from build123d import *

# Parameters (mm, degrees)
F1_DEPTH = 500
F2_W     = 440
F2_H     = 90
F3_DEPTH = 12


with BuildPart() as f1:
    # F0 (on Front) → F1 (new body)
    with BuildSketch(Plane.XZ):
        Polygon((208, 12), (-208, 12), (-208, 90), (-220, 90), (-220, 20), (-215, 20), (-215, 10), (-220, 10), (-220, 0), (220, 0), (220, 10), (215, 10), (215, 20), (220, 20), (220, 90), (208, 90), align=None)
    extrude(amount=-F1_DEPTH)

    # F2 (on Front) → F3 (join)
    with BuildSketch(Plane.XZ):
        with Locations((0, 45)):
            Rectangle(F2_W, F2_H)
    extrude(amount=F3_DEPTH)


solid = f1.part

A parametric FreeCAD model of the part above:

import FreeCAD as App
import Part
import Sketcher
Q = App.Units.Quantity

doc = App.newDocument("Part")
body = doc.addObject("PartDesign::Body", "Body")

sketch1 = body.newObject("Sketcher::SketchObject", "Sketch")
sketch1.AttachmentSupport = (doc.getObject("XZ_Plane"), [""])
sketch1.MapMode = "FlatFace"
sketch1.addGeometry(Part.LineSegment(App.Vector(208, 12, 0), App.Vector(-208, 12, 0)), False)
sketch1.addGeometry(Part.LineSegment(App.Vector(-208, 12, 0), App.Vector(-208, 90, 0)), False)
sketch1.addGeometry(Part.LineSegment(App.Vector(-208, 90, 0), App.Vector(-220, 90, 0)), False)
sketch1.addGeometry(Part.LineSegment(App.Vector(-220, 90, 0), App.Vector(-220, 20, 0)), False)
sketch1.addGeometry(Part.LineSegment(App.Vector(-220, 20, 0), App.Vector(-215, 20, 0)), False)
sketch1.addGeometry(Part.LineSegment(App.Vector(-215, 20, 0), App.Vector(-215, 10, 0)), False)
sketch1.addGeometry(Part.LineSegment(App.Vector(-215, 10, 0), App.Vector(-220, 10, 0)), False)
sketch1.addGeometry(Part.LineSegment(App.Vector(-220, 10, 0), App.Vector(-220, 0, 0)), False)
sketch1.addGeometry(Part.LineSegment(App.Vector(-220, 0, 0), App.Vector(220, 0, 0)), False)
sketch1.addGeometry(Part.LineSegment(App.Vector(220, 0, 0), App.Vector(220, 10, 0)), False)
sketch1.addGeometry(Part.LineSegment(App.Vector(220, 10, 0), App.Vector(215, 10, 0)), False)
sketch1.addGeometry(Part.LineSegment(App.Vector(215, 10, 0), App.Vector(215, 20, 0)), False)
sketch1.addGeometry(Part.LineSegment(App.Vector(215, 20, 0), App.Vector(220, 20, 0)), False)
sketch1.addGeometry(Part.LineSegment(App.Vector(220, 20, 0), App.Vector(220, 90, 0)), False)
sketch1.addGeometry(Part.LineSegment(App.Vector(220, 90, 0), App.Vector(208, 90, 0)), False)
sketch1.addGeometry(Part.LineSegment(App.Vector(208, 90, 0), App.Vector(208, 12, 0)), False)
sketch1.addConstraint(Sketcher.Constraint("Coincident", 0, 2, 1, 1))
sketch1.addConstraint(Sketcher.Constraint("Coincident", 1, 2, 2, 1))
sketch1.addConstraint(Sketcher.Constraint("Coincident", 2, 2, 3, 1))
sketch1.addConstraint(Sketcher.Constraint("Coincident", 3, 2, 4, 1))
sketch1.addConstraint(Sketcher.Constraint("Coincident", 4, 2, 5, 1))
sketch1.addConstraint(Sketcher.Constraint("Coincident", 5, 2, 6, 1))
sketch1.addConstraint(Sketcher.Constraint("Coincident", 6, 2, 7, 1))
sketch1.addConstraint(Sketcher.Constraint("Coincident", 7, 2, 8, 1))
sketch1.addConstraint(Sketcher.Constraint("Coincident", 8, 2, 9, 1))
sketch1.addConstraint(Sketcher.Constraint("Coincident", 9, 2, 10, 1))
sketch1.addConstraint(Sketcher.Constraint("Coincident", 10, 2, 11, 1))
sketch1.addConstraint(Sketcher.Constraint("Coincident", 11, 2, 12, 1))
sketch1.addConstraint(Sketcher.Constraint("Coincident", 12, 2, 13, 1))
sketch1.addConstraint(Sketcher.Constraint("Coincident", 13, 2, 14, 1))
sketch1.addConstraint(Sketcher.Constraint("Coincident", 14, 2, 15, 1))
sketch1.addConstraint(Sketcher.Constraint("Coincident", 15, 2, 0, 1))
sketch1.addConstraint(Sketcher.Constraint("Horizontal", 0))
sketch1.addConstraint(Sketcher.Constraint("Vertical", 1))
sketch1.addConstraint(Sketcher.Constraint("Horizontal", 2))
sketch1.addConstraint(Sketcher.Constraint("Vertical", 3))
sketch1.addConstraint(Sketcher.Constraint("Horizontal", 4))
sketch1.addConstraint(Sketcher.Constraint("Vertical", 5))
sketch1.addConstraint(Sketcher.Constraint("Horizontal", 6))
sketch1.addConstraint(Sketcher.Constraint("Vertical", 7))
sketch1.addConstraint(Sketcher.Constraint("Horizontal", 8))
sketch1.addConstraint(Sketcher.Constraint("Vertical", 9))
sketch1.addConstraint(Sketcher.Constraint("Horizontal", 10))
sketch1.addConstraint(Sketcher.Constraint("Vertical", 11))
sketch1.addConstraint(Sketcher.Constraint("Horizontal", 12))
sketch1.addConstraint(Sketcher.Constraint("Vertical", 13))
sketch1.addConstraint(Sketcher.Constraint("Horizontal", 14))
sketch1.addConstraint(Sketcher.Constraint("Vertical", 15))
sketch1.addConstraint(Sketcher.Constraint("Symmetric", 7, 2, 8, 2, -1, 1))
sketch1.addConstraint(Sketcher.Constraint("Symmetric", 5, 2, 10, 2, -2))
sketch1.addConstraint(Sketcher.Constraint("Symmetric", 3, 2, 12, 2, -2))
sketch1.addConstraint(Sketcher.Constraint("Symmetric", 1, 2, 14, 2, -2))
sketch1.addConstraint(Sketcher.Constraint("Vertical", 3, 2, 6, 2))
sketch1.addConstraint(Sketcher.Constraint("Equal", 5, 7))
sketch1.addConstraint(Sketcher.Constraint("DistanceX", 0, 2, 0, 1, Q("416 mm")))
sketch1.addConstraint(Sketcher.Constraint("DistanceX", 2, 2, 2, 1, Q("12 mm")))
sketch1.addConstraint(Sketcher.Constraint("DistanceX", 4, 1, 4, 2, Q("5 mm")))
sketch1.addConstraint(Sketcher.Constraint("DistanceY", 1, 1, 1, 2, Q("78 mm")))
sketch1.addConstraint(Sketcher.Constraint("DistanceY", 3, 2, 3, 1, Q("70 mm")))
sketch1.addConstraint(Sketcher.Constraint("DistanceY", 5, 2, 5, 1, Q("10 mm")))
pad1 = body.newObject("PartDesign::Pad", "Pad")
pad1.Profile = sketch1
pad1.Length = 500
pad1.Reversed = True

sketch2 = body.newObject("Sketcher::SketchObject", "Sketch001")
sketch2.AttachmentSupport = (doc.getObject("XZ_Plane"), [""])
sketch2.MapMode = "FlatFace"
sketch2.addGeometry(Part.LineSegment(App.Vector(-220, 90, 0), App.Vector(-220, 0, 0)), False)
sketch2.addGeometry(Part.LineSegment(App.Vector(-220, 0, 0), App.Vector(220, 0, 0)), False)
sketch2.addGeometry(Part.LineSegment(App.Vector(220, 0, 0), App.Vector(220, 90, 0)), False)
sketch2.addGeometry(Part.LineSegment(App.Vector(220, 90, 0), App.Vector(-220, 90, 0)), False)
sketch2.addConstraint(Sketcher.Constraint("Coincident", 0, 2, 1, 1))
sketch2.addConstraint(Sketcher.Constraint("Coincident", 1, 2, 2, 1))
sketch2.addConstraint(Sketcher.Constraint("Coincident", 2, 2, 3, 1))
sketch2.addConstraint(Sketcher.Constraint("Coincident", 3, 2, 0, 1))
sketch2.addConstraint(Sketcher.Constraint("Vertical", 0))
sketch2.addConstraint(Sketcher.Constraint("Horizontal", 1))
sketch2.addConstraint(Sketcher.Constraint("Vertical", 2))
sketch2.addConstraint(Sketcher.Constraint("Horizontal", 3))
sketch2.addConstraint(Sketcher.Constraint("Symmetric", 0, 2, 1, 2, -1, 1))
sketch2.addConstraint(Sketcher.Constraint("DistanceX", 1, 1, 1, 2, Q("440 mm")))
sketch2.addConstraint(Sketcher.Constraint("DistanceY", 0, 2, 0, 1, Q("90 mm")))
pad2 = body.newObject("PartDesign::Pad", "Pad001")
pad2.Profile = sketch2
pad2.Length = 12

doc.recompute()
